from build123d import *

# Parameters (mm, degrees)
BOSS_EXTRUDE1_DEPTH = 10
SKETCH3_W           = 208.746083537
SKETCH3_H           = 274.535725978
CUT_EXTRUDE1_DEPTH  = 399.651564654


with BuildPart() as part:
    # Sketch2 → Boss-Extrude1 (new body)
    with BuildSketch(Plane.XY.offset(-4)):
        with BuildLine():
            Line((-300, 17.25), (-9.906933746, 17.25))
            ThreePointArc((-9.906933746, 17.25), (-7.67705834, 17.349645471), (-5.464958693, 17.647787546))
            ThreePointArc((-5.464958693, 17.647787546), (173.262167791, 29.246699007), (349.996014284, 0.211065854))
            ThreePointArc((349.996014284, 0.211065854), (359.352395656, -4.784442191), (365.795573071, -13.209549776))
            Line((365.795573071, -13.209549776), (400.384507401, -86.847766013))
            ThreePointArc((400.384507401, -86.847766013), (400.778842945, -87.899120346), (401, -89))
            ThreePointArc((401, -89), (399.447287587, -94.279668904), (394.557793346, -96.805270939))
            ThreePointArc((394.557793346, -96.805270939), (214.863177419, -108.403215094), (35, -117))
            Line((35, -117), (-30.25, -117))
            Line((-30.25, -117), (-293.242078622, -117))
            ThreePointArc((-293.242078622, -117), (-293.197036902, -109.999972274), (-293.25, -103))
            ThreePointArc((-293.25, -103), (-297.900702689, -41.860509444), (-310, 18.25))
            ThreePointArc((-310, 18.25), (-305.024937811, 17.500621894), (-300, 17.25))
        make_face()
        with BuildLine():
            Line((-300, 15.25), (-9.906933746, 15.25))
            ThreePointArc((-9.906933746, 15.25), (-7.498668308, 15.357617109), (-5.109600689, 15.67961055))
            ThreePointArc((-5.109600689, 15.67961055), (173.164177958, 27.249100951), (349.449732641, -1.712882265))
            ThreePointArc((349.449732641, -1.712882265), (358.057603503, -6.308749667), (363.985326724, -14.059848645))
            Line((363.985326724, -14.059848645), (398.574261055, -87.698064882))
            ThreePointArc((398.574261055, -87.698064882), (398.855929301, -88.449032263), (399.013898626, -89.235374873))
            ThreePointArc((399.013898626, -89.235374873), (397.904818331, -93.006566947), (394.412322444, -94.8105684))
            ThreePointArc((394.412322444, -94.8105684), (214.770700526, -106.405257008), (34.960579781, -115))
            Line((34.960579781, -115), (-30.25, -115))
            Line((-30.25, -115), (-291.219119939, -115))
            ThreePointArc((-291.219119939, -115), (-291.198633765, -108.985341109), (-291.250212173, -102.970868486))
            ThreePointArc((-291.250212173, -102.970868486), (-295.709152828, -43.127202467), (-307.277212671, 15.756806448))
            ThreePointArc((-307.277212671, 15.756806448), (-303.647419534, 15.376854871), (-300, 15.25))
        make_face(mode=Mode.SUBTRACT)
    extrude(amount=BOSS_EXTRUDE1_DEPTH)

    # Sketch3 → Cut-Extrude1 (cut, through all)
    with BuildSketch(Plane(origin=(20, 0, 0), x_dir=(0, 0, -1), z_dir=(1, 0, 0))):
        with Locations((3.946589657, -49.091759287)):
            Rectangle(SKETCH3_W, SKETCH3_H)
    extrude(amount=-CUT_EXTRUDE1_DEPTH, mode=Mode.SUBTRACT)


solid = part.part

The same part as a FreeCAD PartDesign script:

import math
import FreeCAD as App
import Part
import Sketcher

doc = App.newDocument("Part")
body = doc.addObject("PartDesign::Body", "Body")

sketch1 = body.newObject("Sketcher::SketchObject", "Sketch")
sketch1.AttachmentSupport = (doc.getObject("XY_Plane"), [""])
sketch1.MapMode = "FlatFace"
sketch1.AttachmentOffset = App.Placement(App.Vector(0, 0, -4), App.Rotation())
sketch1.addGeometry([
    Part.LineSegment(App.Vector(-9.906934, 17.25, 0), App.Vector(-300, 17.25, 0)),
    Part.ArcOfCircle(Part.Circle(App.Vector(-300, 67.75, 0), App.Vector(0, 0, 1), 50.5), math.radians(-101.421186), math.radians(-90)),
    Part.ArcOfCircle(Part.Circle(App.Vector(-793.196957, -110.282879, 0), App.Vector(0, 0, 1), 500), math.radians(0.834586), math.radians(14.896026)),
    Part.ArcOfCircle(Part.Circle(App.Vector(-793.196958, -110.282879, 0), App.Vector(0, 0, 1), 500.000001), math.radians(-0.769749), math.radians(0.834586)),
    Part.LineSegment(App.Vector(-293.242079, -117, 0), App.Vector(35, -117, 0)),
    Part.ArcOfCircle(Part.Circle(App.Vector(-390.042919, 10661.669529, 0), App.Vector(0, 0, 1), 10787.046783), math.radians(-87.741785), math.radians(-85.828882)),
    Part.ArcOfCircle(Part.Circle(App.Vector(394.048645, -89.823812, 0), App.Vector(0, 0, 1), 7), math.radians(-85.828882), math.radians(6.758657)),
    Part.ArcOfCircle(Part.Circle(App.Vector(394.048645, -89.823812, 0), App.Vector(0, 0, 1), 7), math.radians(6.758657), math.radians(25.160122)),
    Part.LineSegment(App.Vector(400.384507, -86.847766, 0), App.Vector(365.795573, -13.20955, 0)),
    Part.ArcOfCircle(Part.Circle(App.Vector(343.167494, -23.838286, 0), App.Vector(0, 0, 1), 25), math.radians(25.160122), math.radians(74.14875)),
    Part.ArcOfCircle(Part.Circle(App.Vector(134.630813, -758.283165, 0), App.Vector(0, 0, 1), 788.476802), math.radians(74.14875), math.radians(100.234597)),
    Part.ArcOfCircle(Part.Circle(App.Vector(-9.906934, 42.25, 0), App.Vector(0, 0, 1), 25), math.radians(-90), math.radians(-79.765403)),
    Part.LineSegment(App.Vector(-300, 15.25, 0), App.Vector(-9.906934, 15.25, 0)),
    Part.ArcOfCircle(Part.Circle(App.Vector(-9.906934, 42.25, 0), App.Vector(0, 0, 1), 27), math.radians(-90), math.radians(-79.765403)),
    Part.ArcOfCircle(Part.Circle(App.Vector(134.630813, -758.283165, 0), App.Vector(0, 0, 1), 786.476802), math.radians(74.14875), math.radians(100.234597)),
    Part.ArcOfCircle(Part.Circle(App.Vector(343.167494, -23.838286, 0), App.Vector(0, 0, 1), 23), math.radians(25.160122), math.radians(74.14875)),
    Part.LineSegment(App.Vector(363.985327, -14.059849, 0), App.Vector(398.574261, -87.698065, 0)),
    Part.ArcOfCircle(Part.Circle(App.Vector(394.048645, -89.823812, 0), App.Vector(0, 0, 1), 5), math.radians(6.758657), math.radians(25.160122)),
    Part.ArcOfCircle(Part.Circle(App.Vector(394.048645, -89.823812, 0), App.Vector(0, 0, 1), 5), math.radians(-85.828882), math.radians(6.758657)),
    Part.ArcOfCircle(Part.Circle(App.Vector(-390.042918, 10661.669528, 0), App.Vector(0, 0, 1), 10785.046782), math.radians(-87.741576), math.radians(-85.828882)),
    Part.LineSegment(App.Vector(34.96058, -115, 0), App.Vector(-291.21912, -115, 0)),
    Part.ArcOfCircle(Part.Circle(App.Vector(-793.19696, -110.282879, 0), App.Vector(0, 0, 1), 502.000004), math.radians(-0.538397), math.radians(0.834586)),
    Part.ArcOfCircle(Part.Circle(App.Vector(-793.196957, -110.282879, 0), App.Vector(0, 0, 1), 502), math.radians(0.834586), math.radians(14.541138)),
    Part.ArcOfCircle(Part.Circle(App.Vector(-300, 67.75, 0), App.Vector(0, 0, 1), 52.5), math.radians(-97.967628), math.radians(-90)),
], False)
sketch1.addConstraint([
    Sketcher.Constraint("Tangent", 0, 2, 1, 2),
    Sketcher.Constraint("Coincident", 1, 1, 2, 2),
    Sketcher.Constraint("Coincident", 2, 1, 3, 2),
    Sketcher.Constraint("Coincident", 3, 1, 4, 1),
    Sketcher.Constraint("Coincident", 4, 2, 5, 1),
    Sketcher.Constraint("Tangent", 5, 2, 6, 1),
    Sketcher.Constraint("Tangent", 6, 2, 7, 1),
    Sketcher.Constraint("Tangent", 7, 2, 8, 1),
    Sketcher.Constraint("Tangent", 8, 2, 9, 1),
    Sketcher.Constraint("Tangent", 9, 2, 10, 1),
    Sketcher.Constraint("Tangent", 10, 2, 11, 2),
    Sketcher.Constraint("Tangent", 11, 1, 0, 1),
    Sketcher.Constraint("Tangent", 12, 2, 13, 1),
    Sketcher.Constraint("Tangent", 13, 2, 14, 2),
    Sketcher.Constraint("Tangent", 14, 1, 15, 2),
    Sketcher.Constraint("Tangent", 15, 1, 16, 1),
    Sketcher.Constraint("Tangent", 16, 2, 17, 2),
    Sketcher.Constraint("Tangent", 17, 1, 18, 2),
    Sketcher.Constraint("Tangent", 18, 1, 19, 2),
    Sketcher.Constraint("Coincident", 19, 1, 20, 1),
    Sketcher.Constraint("Coincident", 20, 2, 21, 1),
    Sketcher.Constraint("Coincident", 21, 2, 22, 1),
    Sketcher.Constraint("Coincident", 22, 2, 23, 1),
    Sketcher.Constraint("Tangent", 23, 2, 12, 1),
    Sketcher.Constraint("Horizontal", 0),
    Sketcher.Constraint("Horizontal", 4),
    Sketcher.Constraint("Horizontal", 12),
    Sketcher.Constraint("Horizontal", 20),
    Sketcher.Constraint("Coincident", 3, 3, 2, 3),
    Sketcher.Constraint("Coincident", 13, 3, 11, 3),
    Sketcher.Constraint("Coincident", 14, 3, 10, 3),
    Sketcher.Constraint("Coincident", 15, 3, 9, 3),
    Sketcher.Constraint("Coincident", 17, 3, 6, 3),
    Sketcher.Constraint("Coincident", 19, 3, 5, 3),
    Sketcher.Constraint("Coincident", 21, 3, 2, 3),
    Sketcher.Constraint("Coincident", 22, 3, 2, 3),
    Sketcher.Constraint("Coincident", 23, 3, 1, 3),
    Sketcher.Constraint("Equal", 6, 7),
    Sketcher.Constraint("Equal", 9, 11),
    Sketcher.Constraint("Equal", 17, 18),
    Sketcher.Constraint("Parallel", 8, 16),
    Sketcher.Constraint("Radius", 2, 500.0),
    Sketcher.Constraint("Radius", 6, 7.0),
    Sketcher.Constraint("Radius", 9, 25.0),
    Sketcher.Constraint("Radius", 13, 27.0),
    Sketcher.Constraint("Radius", 22, 502.0),
    Sketcher.Constraint("Radius", 1, 50.5),
    Sketcher.Constraint("DistanceX", 1, 3, -1, 1, 300.0),
    Sketcher.Constraint("DistanceX", 1, 1, -1, 1, 310.0),
    Sketcher.Constraint("DistanceY", 2, 1, -1, 1, 103.0),
    Sketcher.Constraint("DistanceX", -1, 1, 4, 2, 35.0),
    Sketcher.Constraint("DistanceY", 4, 2, -1, 1, 117.0),
    Sketcher.Constraint("DistanceX", -1, 1, 6, 2, 401.0),
    Sketcher.Constraint("DistanceY", 6, 2, -1, 1, 89.0),
    Sketcher.Constraint("DistanceY", 20, 2, -1, 1, 115.0),
    Sketcher.Constraint("DistanceY", -1, 1, 1, 3, 67.75),
    Sketcher.Constraint("DistanceX", 2, 1, -1, 1, 293.25),
    Sketcher.Constraint("Radius", 19, 10785.046782),
    Sketcher.Constraint("Radius", 10, 788.476802),
    Sketcher.Constraint("DistanceX", 13, 2, -1, 1, 5.109601),
    Sketcher.Constraint("DistanceX", -1, 1, 17, 1, 399.013899),
    Sketcher.Constraint("Distance", 8, 81.357122),
    Sketcher.Constraint("DistanceX", 0, 2, 0, 1, 290.093066),
    Sketcher.Constraint("DistanceX", 5, 3, -1, 1, 390.042919),
    Sketcher.Constraint("DistanceY", 21, 2, -1, 1, 102.970868),
])
pad1 = body.newObject("PartDesign::Pad", "Pad")
pad1.Profile = sketch1
pad1.Length = 10

sketch2 = body.newObject("Sketcher::SketchObject", "Sketch001")
sketch2.AttachmentSupport = (doc.getObject("YZ_Plane"), [""])
sketch2.MapMode = "FlatFace"
sketch2.AttachmentOffset = App.Placement(App.Vector(0, 0, 20), App.Rotation())
sketch2.addGeometry([
    Part.LineSegment(App.Vector(88.176104, 100.426452, 0), App.Vector(-186.359622, 100.426452, 0)),
    Part.LineSegment(App.Vector(-186.359622, 100.426452, 0), App.Vector(-186.359622, -108.319631, 0)),
    Part.LineSegment(App.Vector(-186.359622, -108.319631, 0), App.Vector(88.176104, -108.319631, 0)),
    Part.LineSegment(App.Vector(88.176104, -108.319631, 0), App.Vector(88.176104, 100.426452, 0)),
], False)
sketch2.addConstraint([
    Sketcher.Constraint("Coincident", 0, 2, 1, 1),
    Sketcher.Constraint("Coincident", 1, 2, 2, 1),
    Sketcher.Constraint("Coincident", 2, 2, 3, 1),
    Sketcher.Constraint("Coincident", 3, 2, 0, 1),
    Sketcher.Constraint("Horizontal", 0),
    Sketcher.Constraint("Vertical", 1),
    Sketcher.Constraint("Horizontal", 2),
    Sketcher.Constraint("Vertical", 3),
    Sketcher.Constraint("DistanceX", 0, 2, 0, 1, 274.535726),
    Sketcher.Constraint("DistanceY", 1, 2, 1, 1, 208.746084),
    Sketcher.Constraint("DistanceY", 1, 2, -1, 1, 108.319631),
    Sketcher.Constraint("DistanceX", 0, 2, -1, 1, 186.359622),
])
pocket1 = body.newObject("PartDesign::Pocket", "Pocket")
pocket1.Profile = sketch2
pocket1.Type = "ThroughAll"

doc.recompute()
